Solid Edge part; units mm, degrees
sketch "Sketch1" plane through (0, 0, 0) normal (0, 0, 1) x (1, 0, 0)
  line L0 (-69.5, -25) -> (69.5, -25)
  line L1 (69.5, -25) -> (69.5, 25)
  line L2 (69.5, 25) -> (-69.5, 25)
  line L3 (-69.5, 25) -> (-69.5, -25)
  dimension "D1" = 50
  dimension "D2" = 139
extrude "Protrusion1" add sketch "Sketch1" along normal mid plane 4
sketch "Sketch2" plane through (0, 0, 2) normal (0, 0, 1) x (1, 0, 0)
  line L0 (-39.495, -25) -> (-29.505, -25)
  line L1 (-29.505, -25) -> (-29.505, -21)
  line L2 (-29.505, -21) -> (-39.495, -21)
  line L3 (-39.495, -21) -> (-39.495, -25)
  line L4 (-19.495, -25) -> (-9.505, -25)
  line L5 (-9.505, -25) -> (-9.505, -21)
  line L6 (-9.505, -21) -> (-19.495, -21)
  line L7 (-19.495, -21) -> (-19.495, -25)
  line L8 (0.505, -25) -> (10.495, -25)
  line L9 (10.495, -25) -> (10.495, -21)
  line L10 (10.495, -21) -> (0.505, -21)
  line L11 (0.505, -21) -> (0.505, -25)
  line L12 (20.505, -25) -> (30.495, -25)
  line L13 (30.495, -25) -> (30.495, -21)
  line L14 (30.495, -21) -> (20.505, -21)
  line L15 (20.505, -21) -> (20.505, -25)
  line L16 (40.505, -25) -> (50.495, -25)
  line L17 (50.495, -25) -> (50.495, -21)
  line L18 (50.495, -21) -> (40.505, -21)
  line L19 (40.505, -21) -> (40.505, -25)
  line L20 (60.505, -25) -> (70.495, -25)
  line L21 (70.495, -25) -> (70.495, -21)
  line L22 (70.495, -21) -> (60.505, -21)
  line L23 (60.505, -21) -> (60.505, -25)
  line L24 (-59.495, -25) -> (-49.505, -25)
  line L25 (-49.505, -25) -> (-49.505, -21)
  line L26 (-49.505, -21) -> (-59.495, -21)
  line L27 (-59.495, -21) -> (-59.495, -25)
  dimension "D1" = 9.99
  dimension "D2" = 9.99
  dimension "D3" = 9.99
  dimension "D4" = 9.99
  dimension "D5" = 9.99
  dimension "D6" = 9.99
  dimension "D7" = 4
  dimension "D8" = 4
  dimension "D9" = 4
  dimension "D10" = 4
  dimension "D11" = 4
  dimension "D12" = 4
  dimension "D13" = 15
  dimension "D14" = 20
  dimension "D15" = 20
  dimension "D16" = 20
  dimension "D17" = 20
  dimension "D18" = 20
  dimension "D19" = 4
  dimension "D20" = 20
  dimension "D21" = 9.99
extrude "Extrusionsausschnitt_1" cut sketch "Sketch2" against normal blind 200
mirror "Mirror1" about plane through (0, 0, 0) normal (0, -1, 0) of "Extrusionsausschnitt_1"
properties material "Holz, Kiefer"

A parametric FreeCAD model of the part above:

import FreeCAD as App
import Part
import Sketcher

V = App.Vector
Q = App.Units.Quantity


def add_polygon(sketch, points):
    """Adds a closed chain of lines whose ends are joined by coincident constraints."""
    first, n = sketch.GeometryCount, len(points)
    for a, b in zip(points, points[1:] + points[:1]):
        sketch.addGeometry(Part.LineSegment(App.Vector(*a, 0), App.Vector(*b, 0)), False)
    for i in range(n):
        sketch.addConstraint(Sketcher.Constraint("Coincident", first + i, 2, first + (i + 1) % n, 1))

doc = App.newDocument("Part")
body = doc.addObject("PartDesign::Body", "Body")

sketch1 = body.newObject("Sketcher::SketchObject", "Sketch")
sketch1.AttachmentSupport = (doc.getObject("XY_Plane"), [""])
sketch1.MapMode = "FlatFace"
add_polygon(sketch1, [(-70, 25), (-70, -25), (70, -25), (70, 25)])
sketch1.addConstraint(Sketcher.Constraint("Vertical", 0))
sketch1.addConstraint(Sketcher.Constraint("Horizontal", 1))
sketch1.addConstraint(Sketcher.Constraint("Vertical", 2))
sketch1.addConstraint(Sketcher.Constraint("Horizontal", 3))
sketch1.addConstraint(Sketcher.Constraint("Symmetric", 0, 2, 2, 2, -1, 1))
sketch1.addConstraint(Sketcher.Constraint("DistanceX", 0, 2, -1, 1, Q("69.5 mm")))
sketch1.addConstraint(Sketcher.Constraint("DistanceY", 0, 2, 0, 1, Q("50 mm")))
pad1 = body.newObject("PartDesign::Pad", "Pad")
pad1.Profile = sketch1
pad1.Length = 4
pad1.Midplane = True

sketch2 = body.newObject("Sketcher::SketchObject", "Sketch001")
sketch2.AttachmentSupport = (doc.getObject("XY_Plane"), [""])
sketch2.MapMode = "FlatFace"
sketch2.AttachmentOffset = App.Placement(V(0, 0, 2), App.Rotation())
add_polygon(sketch2, [(-39.5, -21), (-39.5, -25), (-29.5, -25), (-29.5, -21)])
add_polygon(sketch2, [(-19.5, -21), (-19.5, -25), (-9.5, -25), (-9.5, -21)])
add_polygon(sketch2, [(0.5, -21), (0.5, -25), (10.5, -25), (10.5, -21)])
add_polygon(sketch2, [(20.5, -21), (20.5, -25), (30.5, -25), (30.5, -21)])
add_polygon(sketch2, [(40.5, -21), (40.5, -25), (50.5, -25), (50.5, -21)])
add_polygon(sketch2, [(60.5, -21), (60.5, -25), (70.5, -25), (70.5, -21)])
add_polygon(sketch2, [(-59.5, -21), (-59.5, -25), (-49.5, -25), (-49.5, -21)])
sketch2.addConstraint(Sketcher.Constraint("Vertical", 0))
sketch2.addConstraint(Sketcher.Constraint("Horizontal", 1))
sketch2.addConstraint(Sketcher.Constraint("Vertical", 2))
sketch2.addConstraint(Sketcher.Constraint("Horizontal", 3))
sketch2.addConstraint(Sketcher.Constraint("Vertical", 4))
sketch2.addConstraint(Sketcher.Constraint("Horizontal", 5))
sketch2.addConstraint(Sketcher.Constraint("Vertical", 6))
sketch2.addConstraint(Sketcher.Constraint("Horizontal", 7))
sketch2.addConstraint(Sketcher.Constraint("Vertical", 8))
sketch2.addConstraint(Sketcher.Constraint("Horizontal", 9))
sketch2.addConstraint(Sketcher.Constraint("Vertical", 10))
sketch2.addConstraint(Sketcher.Constraint("Horizontal", 11))
sketch2.addConstraint(Sketcher.Constraint("Vertical", 12))
sketch2.addConstraint(Sketcher.Constraint("Horizontal", 13))
sketch2.addConstraint(Sketcher.Constraint("Vertical", 14))
sketch2.addConstraint(Sketcher.Constraint("Horizontal", 15))
sketch2.addConstraint(Sketcher.Constraint("Vertical", 16))
sketch2.addConstraint(Sketcher.Constraint("Horizontal", 17))
sketch2.addConstraint(Sketcher.Constraint("Vertical", 18))
sketch2.addConstraint(Sketcher.Constraint("Horizontal", 19))
sketch2.addConstraint(Sketcher.Constraint("Vertical", 20))
sketch2.addConstraint(Sketcher.Constraint("Horizontal", 21))
sketch2.addConstraint(Sketcher.Constraint("Vertical", 22))
sketch2.addConstraint(Sketcher.Constraint("Horizontal", 23))
sketch2.addConstraint(Sketcher.Constraint("Vertical", 24))
sketch2.addConstraint(Sketcher.Constraint("Horizontal", 25))
sketch2.addConstraint(Sketcher.Constraint("Vertical", 26))
sketch2.addConstraint(Sketcher.Constraint("Horizontal", 27))
sketch2.addConstraint(Sketcher.Constraint("Horizontal", 1, 2, 4, 2))
sketch2.addConstraint(Sketcher.Constraint("Horizontal", 3, 2, 6, 2))
sketch2.addConstraint(Sketcher.Constraint("Horizontal", 5, 2, 8, 2))
sketch2.addConstraint(Sketcher.Constraint("Horizontal", 7, 2, 10, 2))
sketch2.addConstraint(Sketcher.Constraint("Horizontal", 9, 2, 12, 2))
sketch2.addConstraint(Sketcher.Constraint("Horizontal", 11, 2, 14, 2))
sketch2.addConstraint(Sketcher.Constraint("Horizontal", 13, 2, 16, 2))
sketch2.addConstraint(Sketcher.Constraint("Horizontal", 15, 2, 18, 2))
sketch2.addConstraint(Sketcher.Constraint("Horizontal", 17, 2, 20, 2))
sketch2.addConstraint(Sketcher.Constraint("Horizontal", 19, 2, 22, 2))
sketch2.addConstraint(Sketcher.Constraint("Horizontal", 21, 2, 24, 2))
sketch2.addConstraint(Sketcher.Constraint("Horizontal", 23, 2, 26, 2))
sketch2.addConstraint(Sketcher.Constraint("Equal", 3, 5))
sketch2.addConstraint(Sketcher.Constraint("Equal", 7, 9))
sketch2.addConstraint(Sketcher.Constraint("Equal", 11, 13))
sketch2.addConstraint(Sketcher.Constraint("Equal", 15, 17))
sketch2.addConstraint(Sketcher.Constraint("Equal", 19, 21))
sketch2.addConstraint(Sketcher.Constraint("Equal", 23, 25))
sketch2.addConstraint(Sketcher.Constraint("DistanceY", 0, 2, 0, 1, Q("4 mm")))
sketch2.addConstraint(Sketcher.Constraint("DistanceX", 0, 2, -1, 1, Q("39.495 mm")))
sketch2.addConstraint(Sketcher.Constraint("DistanceX", 1, 2, -1, 1, Q("29.505 mm")))
sketch2.addConstraint(Sketcher.Constraint("DistanceX", 4, 2, -1, 1, Q("19.495 mm")))
sketch2.addConstraint(Sketcher.Constraint("DistanceX", -1, 1, 8, 2, Q("0.505 mm")))
sketch2.addConstraint(Sketcher.Constraint("DistanceX", -1, 1, 12, 2, Q("20.505 mm")))
sketch2.addConstraint(Sketcher.Constraint("DistanceX", -1, 1, 16, 2, Q("40.505 mm")))
sketch2.addConstraint(Sketcher.Constraint("DistanceX", -1, 1, 20, 2, Q("60.505 mm")))
sketch2.addConstraint(Sketcher.Constraint("DistanceX", 24, 2, -1, 1, Q("59.495 mm")))
sketch2.addConstraint(Sketcher.Constraint("DistanceY", 0, 2, -1, 1, Q("25 mm")))
pocket1 = body.newObject("PartDesign::Pocket", "Pocket")
pocket1.Profile = sketch2
pocket1.Length = 200
doc.recompute()

mirrored = body.newObject("PartDesign::Mirrored", "Mirrored")
mirrored.Originals = [pocket1]
mirrored.MirrorPlane = (doc.getObject("XZ_Plane"), [""])
body.Tip = mirrored

doc.recompute()
